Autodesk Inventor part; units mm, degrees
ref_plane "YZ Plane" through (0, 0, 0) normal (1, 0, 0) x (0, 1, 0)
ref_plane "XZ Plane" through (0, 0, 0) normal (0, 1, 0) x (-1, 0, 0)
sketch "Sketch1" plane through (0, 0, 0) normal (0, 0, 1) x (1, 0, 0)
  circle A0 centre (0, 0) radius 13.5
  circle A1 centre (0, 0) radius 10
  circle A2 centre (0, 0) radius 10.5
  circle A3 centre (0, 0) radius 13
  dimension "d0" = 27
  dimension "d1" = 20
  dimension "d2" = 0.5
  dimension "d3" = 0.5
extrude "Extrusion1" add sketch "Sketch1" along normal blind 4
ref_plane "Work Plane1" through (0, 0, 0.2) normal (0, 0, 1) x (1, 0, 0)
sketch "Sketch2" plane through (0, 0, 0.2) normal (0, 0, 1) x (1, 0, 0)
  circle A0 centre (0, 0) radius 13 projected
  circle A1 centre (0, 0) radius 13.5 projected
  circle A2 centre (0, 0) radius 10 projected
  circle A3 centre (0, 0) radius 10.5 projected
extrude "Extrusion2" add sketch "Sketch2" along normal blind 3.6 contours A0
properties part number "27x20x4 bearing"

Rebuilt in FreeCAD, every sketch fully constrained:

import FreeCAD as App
import Part
import Sketcher
from FreeCAD import Vector
Q = App.Units.Quantity

doc = App.newDocument("Part")
body = doc.addObject("PartDesign::Body", "Body")
body.AllowCompound = True

sketch1 = body.newObject("Sketcher::SketchObject", "Sketch")
sketch1.AttachmentSupport = (doc.getObject("XY_Plane"), [""])
sketch1.MapMode = "FlatFace"
sketch1.addGeometry([
    Part.Circle(Vector(0, 0, 0), Vector(0, 0, 1), 14),
    Part.Circle(Vector(0, 0, 0), Vector(0, 0, 1), 13),
    Part.Circle(Vector(0, 0, 0), Vector(0, 0, 1), 10),
    Part.Circle(Vector(0, 0, 0), Vector(0, 0, 1), 10),
], False)
sketch1.addConstraint([
    Sketcher.Constraint("Coincident", 0, 3, -1, 1),
    Sketcher.Constraint("Coincident", 1, 3, -1, 1),
    Sketcher.Constraint("Coincident", 2, 3, -1, 1),
    Sketcher.Constraint("Coincident", 3, 3, -1, 1),
    Sketcher.Constraint("Diameter", 0, Q("27 mm")),
    Sketcher.Constraint("Diameter", 3, Q("20 mm")),
    Sketcher.Constraint("Diameter", 1, Q("26 mm")),
    Sketcher.Constraint("Diameter", 2, Q("21 mm")),
])
pad1 = body.newObject("PartDesign::Pad", "Pad")
pad1.Profile = sketch1
pad1.Length = 4

sketch2 = body.newObject("Sketcher::SketchObject", "Sketch001")
sketch2.AttachmentSupport = (doc.getObject("XY_Plane"), [""])
sketch2.MapMode = "FlatFace"
sketch2.AttachmentOffset = App.Placement(Vector(0, 0, 0.2), App.Rotation())
sketch2.addGeometry([
    Part.Circle(Vector(0, 0, 0), Vector(0, 0, 1), 13),
    Part.Circle(Vector(0, 0, 0), Vector(0, 0, 1), 10),
], False)
sketch2.addConstraint([
    Sketcher.Constraint("Coincident", 0, 3, -1, 1),
    Sketcher.Constraint("Coincident", 1, 3, -1, 1),
    Sketcher.Constraint("Diameter", 0, Q("26 mm")),
    Sketcher.Constraint("Diameter", 1, Q("21 mm")),
])
pad2 = body.newObject("PartDesign::Pad", "Pad001")
pad2.Profile = sketch2
pad2.Length = 3.6

doc.recompute()
